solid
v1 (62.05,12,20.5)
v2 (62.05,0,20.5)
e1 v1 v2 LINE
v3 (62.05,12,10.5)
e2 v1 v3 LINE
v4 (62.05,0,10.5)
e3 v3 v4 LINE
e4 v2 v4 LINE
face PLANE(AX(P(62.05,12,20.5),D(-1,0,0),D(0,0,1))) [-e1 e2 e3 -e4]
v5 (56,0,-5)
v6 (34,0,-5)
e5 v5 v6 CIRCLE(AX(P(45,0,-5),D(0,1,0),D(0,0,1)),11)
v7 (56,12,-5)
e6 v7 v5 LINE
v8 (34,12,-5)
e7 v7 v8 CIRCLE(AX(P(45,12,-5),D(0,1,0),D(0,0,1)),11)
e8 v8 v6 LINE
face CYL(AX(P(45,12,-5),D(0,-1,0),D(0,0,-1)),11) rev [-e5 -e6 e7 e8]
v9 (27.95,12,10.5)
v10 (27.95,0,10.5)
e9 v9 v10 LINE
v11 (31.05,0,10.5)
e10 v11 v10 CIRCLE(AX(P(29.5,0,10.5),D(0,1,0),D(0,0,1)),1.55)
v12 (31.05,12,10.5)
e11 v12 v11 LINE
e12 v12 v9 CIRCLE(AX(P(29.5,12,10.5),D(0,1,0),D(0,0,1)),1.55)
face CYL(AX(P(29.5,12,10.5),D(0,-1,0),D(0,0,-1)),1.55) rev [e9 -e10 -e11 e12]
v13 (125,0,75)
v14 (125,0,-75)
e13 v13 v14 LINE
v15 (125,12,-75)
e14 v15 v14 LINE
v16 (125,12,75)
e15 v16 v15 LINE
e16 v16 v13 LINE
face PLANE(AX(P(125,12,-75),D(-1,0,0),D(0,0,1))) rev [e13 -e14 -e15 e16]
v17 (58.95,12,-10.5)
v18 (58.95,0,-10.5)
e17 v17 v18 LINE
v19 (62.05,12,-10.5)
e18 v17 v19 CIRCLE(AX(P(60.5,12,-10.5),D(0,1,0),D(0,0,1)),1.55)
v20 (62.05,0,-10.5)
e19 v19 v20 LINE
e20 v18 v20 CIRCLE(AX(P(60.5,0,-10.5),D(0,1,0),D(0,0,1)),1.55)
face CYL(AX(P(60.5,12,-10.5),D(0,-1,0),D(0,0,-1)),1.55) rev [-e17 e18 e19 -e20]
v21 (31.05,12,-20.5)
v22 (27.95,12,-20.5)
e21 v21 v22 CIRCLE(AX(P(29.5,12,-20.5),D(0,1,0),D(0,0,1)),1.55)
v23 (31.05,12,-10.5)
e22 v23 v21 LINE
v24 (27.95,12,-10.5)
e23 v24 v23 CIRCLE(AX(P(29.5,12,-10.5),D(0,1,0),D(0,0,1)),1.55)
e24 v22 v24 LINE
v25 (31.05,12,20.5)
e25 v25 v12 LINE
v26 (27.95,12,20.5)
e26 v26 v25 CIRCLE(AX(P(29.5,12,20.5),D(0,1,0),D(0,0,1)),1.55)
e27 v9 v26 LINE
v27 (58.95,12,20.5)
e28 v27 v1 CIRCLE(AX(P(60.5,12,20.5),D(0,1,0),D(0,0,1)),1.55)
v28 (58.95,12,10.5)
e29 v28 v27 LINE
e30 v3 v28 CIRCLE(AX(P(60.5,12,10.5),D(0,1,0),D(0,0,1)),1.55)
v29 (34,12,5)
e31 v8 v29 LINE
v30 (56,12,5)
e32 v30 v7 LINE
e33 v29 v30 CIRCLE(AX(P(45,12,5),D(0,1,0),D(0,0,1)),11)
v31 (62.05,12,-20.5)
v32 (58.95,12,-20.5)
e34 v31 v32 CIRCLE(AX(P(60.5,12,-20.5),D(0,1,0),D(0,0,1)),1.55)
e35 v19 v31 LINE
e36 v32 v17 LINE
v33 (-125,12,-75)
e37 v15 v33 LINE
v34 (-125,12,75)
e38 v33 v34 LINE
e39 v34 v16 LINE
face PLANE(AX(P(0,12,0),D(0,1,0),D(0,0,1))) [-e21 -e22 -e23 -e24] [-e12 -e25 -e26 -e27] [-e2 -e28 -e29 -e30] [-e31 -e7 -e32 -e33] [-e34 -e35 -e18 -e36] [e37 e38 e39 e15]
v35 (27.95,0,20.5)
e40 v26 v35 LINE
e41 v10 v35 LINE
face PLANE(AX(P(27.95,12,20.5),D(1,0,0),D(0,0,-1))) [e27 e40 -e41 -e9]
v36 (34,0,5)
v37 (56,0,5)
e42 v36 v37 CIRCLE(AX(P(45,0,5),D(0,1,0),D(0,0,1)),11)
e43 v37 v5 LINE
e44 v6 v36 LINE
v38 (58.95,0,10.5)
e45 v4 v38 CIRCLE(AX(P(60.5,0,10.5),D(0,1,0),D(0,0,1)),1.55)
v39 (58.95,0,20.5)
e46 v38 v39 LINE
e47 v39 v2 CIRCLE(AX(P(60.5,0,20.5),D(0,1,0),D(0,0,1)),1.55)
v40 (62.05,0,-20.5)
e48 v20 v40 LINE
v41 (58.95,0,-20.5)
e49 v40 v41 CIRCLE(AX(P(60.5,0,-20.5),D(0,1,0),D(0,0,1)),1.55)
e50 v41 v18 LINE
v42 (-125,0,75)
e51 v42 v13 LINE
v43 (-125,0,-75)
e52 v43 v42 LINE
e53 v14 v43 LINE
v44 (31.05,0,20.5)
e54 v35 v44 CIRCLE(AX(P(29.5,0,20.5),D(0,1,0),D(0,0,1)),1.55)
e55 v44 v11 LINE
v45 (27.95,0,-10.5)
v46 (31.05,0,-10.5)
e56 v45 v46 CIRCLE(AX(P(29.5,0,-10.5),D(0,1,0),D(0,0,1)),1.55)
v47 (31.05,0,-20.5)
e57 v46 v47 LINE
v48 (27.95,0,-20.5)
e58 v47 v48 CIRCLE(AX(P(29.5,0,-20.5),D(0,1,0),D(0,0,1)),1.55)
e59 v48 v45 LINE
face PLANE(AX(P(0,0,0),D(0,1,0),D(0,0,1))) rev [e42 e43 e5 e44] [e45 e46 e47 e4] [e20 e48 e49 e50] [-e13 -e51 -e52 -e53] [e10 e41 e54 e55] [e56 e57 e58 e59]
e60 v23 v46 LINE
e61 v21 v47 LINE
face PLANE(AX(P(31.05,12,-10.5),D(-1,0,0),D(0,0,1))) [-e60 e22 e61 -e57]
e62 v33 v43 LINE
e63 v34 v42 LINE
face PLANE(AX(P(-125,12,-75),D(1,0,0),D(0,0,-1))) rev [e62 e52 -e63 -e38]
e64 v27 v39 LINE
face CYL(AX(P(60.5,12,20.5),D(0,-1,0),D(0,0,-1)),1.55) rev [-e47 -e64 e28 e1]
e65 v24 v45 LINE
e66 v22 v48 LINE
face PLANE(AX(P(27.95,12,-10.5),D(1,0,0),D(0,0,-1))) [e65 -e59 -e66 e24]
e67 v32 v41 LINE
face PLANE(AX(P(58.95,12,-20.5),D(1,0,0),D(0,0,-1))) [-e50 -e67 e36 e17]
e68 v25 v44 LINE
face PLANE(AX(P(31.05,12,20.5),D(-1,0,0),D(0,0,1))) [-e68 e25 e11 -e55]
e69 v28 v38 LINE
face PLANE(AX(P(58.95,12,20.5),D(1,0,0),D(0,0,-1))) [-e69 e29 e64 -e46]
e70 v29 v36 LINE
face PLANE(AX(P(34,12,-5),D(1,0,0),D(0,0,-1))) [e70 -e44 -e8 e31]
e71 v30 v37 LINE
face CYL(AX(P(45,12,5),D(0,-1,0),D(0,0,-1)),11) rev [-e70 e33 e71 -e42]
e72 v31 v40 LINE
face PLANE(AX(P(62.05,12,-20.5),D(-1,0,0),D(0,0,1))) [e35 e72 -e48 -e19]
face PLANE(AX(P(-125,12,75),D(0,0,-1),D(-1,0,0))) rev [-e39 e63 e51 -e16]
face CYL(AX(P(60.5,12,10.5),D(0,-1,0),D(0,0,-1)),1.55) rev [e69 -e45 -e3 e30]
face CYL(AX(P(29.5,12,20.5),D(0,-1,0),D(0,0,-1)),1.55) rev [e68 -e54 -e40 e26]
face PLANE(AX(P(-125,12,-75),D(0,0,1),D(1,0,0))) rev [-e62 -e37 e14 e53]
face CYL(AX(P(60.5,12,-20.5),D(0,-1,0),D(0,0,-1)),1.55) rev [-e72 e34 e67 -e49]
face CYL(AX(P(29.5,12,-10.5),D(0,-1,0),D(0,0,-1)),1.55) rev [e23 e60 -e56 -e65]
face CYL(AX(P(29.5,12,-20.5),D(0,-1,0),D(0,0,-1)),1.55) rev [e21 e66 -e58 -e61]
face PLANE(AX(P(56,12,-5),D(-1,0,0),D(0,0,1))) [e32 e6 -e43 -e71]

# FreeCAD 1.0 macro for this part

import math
import FreeCAD as App
import Part
import Sketcher
from FreeCAD import Vector


def add_polygon(sketch, points):
    """Adds a closed chain of lines whose ends are joined by coincident constraints."""
    first, n = sketch.GeometryCount, len(points)
    for a, b in zip(points, points[1:] + points[:1]):
        sketch.addGeometry(Part.LineSegment(App.Vector(*a, 0), App.Vector(*b, 0)), False)
    for i in range(n):
        sketch.addConstraint(Sketcher.Constraint("Coincident", first + i, 2, first + (i + 1) % n, 1))

doc = App.newDocument("Part")
body = doc.addObject("PartDesign::Body", "Body")

sketch1 = body.newObject("Sketcher::SketchObject", "Sketch")
sketch1.AttachmentSupport = (doc.getObject("XZ_Plane"), [""])
sketch1.MapMode = "FlatFace"
add_polygon(sketch1, [(-125, -75), (-125, 75), (125, 75), (125, -75)])
sketch1.addGeometry(Part.ArcOfCircle(Part.Circle(Vector(29.5, 20.5, 0), Vector(0, 0, 1), 1.55), math.radians(0), math.radians(180)), False)
sketch1.addGeometry(Part.LineSegment(Vector(27.95, 20.5, 0), Vector(27.95, 10.5, 0)), False)
sketch1.addGeometry(Part.ArcOfCircle(Part.Circle(Vector(29.5, 10.5, 0), Vector(0, 0, 1), 1.55), math.radians(180), math.radians(360)), False)
sketch1.addGeometry(Part.LineSegment(Vector(31.05, 10.5, 0), Vector(31.05, 20.5, 0)), False)
sketch1.addGeometry(Part.ArcOfCircle(Part.Circle(Vector(60.5, 20.5, 0), Vector(0, 0, 1), 1.55), math.radians(0), math.radians(180)), False)
sketch1.addGeometry(Part.LineSegment(Vector(58.95, 20.5, 0), Vector(58.95, 10.5, 0)), False)
sketch1.addGeometry(Part.ArcOfCircle(Part.Circle(Vector(60.5, 10.5, 0), Vector(0, 0, 1), 1.55), math.radians(180), math.radians(360)), False)
sketch1.addGeometry(Part.LineSegment(Vector(62.05, 10.5, 0), Vector(62.05, 20.5, 0)), False)
sketch1.addGeometry(Part.ArcOfCircle(Part.Circle(Vector(29.5, -10.5, 0), Vector(0, 0, 1), 1.55), math.radians(0), math.radians(180)), False)
sketch1.addGeometry(Part.LineSegment(Vector(27.95, -10.5, 0), Vector(27.95, -20.5, 0)), False)
sketch1.addGeometry(Part.ArcOfCircle(Part.Circle(Vector(29.5, -20.5, 0), Vector(0, 0, 1), 1.55), math.radians(180), math.radians(360)), False)
sketch1.addGeometry(Part.LineSegment(Vector(31.05, -20.5, 0), Vector(31.05, -10.5, 0)), False)
sketch1.addGeometry(Part.ArcOfCircle(Part.Circle(Vector(45, -5, 0), Vector(0, 0, 1), 11), math.radians(180), math.radians(360)), False)
sketch1.addGeometry(Part.LineSegment(Vector(56, -5, 0), Vector(56, 5, 0)), False)
sketch1.addGeometry(Part.ArcOfCircle(Part.Circle(Vector(45, 5, 0), Vector(0, 0, 1), 11), math.radians(0), math.radians(180)), False)
sketch1.addGeometry(Part.LineSegment(Vector(34, 5, 0), Vector(34, -5, 0)), False)
sketch1.addGeometry(Part.ArcOfCircle(Part.Circle(Vector(60.5, -20.5, 0), Vector(0, 0, 1), 1.55), math.radians(180), math.radians(360)), False)
sketch1.addGeometry(Part.LineSegment(Vector(62.05, -20.5, 0), Vector(62.05, -10.5, 0)), False)
sketch1.addGeometry(Part.ArcOfCircle(Part.Circle(Vector(60.5, -10.5, 0), Vector(0, 0, 1), 1.55), math.radians(0), math.radians(180)), False)
sketch1.addGeometry(Part.LineSegment(Vector(58.95, -10.5, 0), Vector(58.95, -20.5, 0)), False)
sketch1.addConstraint([
    Sketcher.Constraint("Tangent", 4, 2, 5, 1),
    Sketcher.Constraint("Tangent", 5, 2, 6, 1),
    Sketcher.Constraint("Tangent", 6, 2, 7, 1),
    Sketcher.Constraint("Tangent", 7, 2, 4, 1),
    Sketcher.Constraint("Tangent", 8, 2, 9, 1),
    Sketcher.Constraint("Tangent", 9, 2, 10, 1),
    Sketcher.Constraint("Tangent", 10, 2, 11, 1),
    Sketcher.Constraint("Tangent", 11, 2, 8, 1),
    Sketcher.Constraint("Tangent", 12, 2, 13, 1),
    Sketcher.Constraint("Tangent", 13, 2, 14, 1),
    Sketcher.Constraint("Tangent", 14, 2, 15, 1),
    Sketcher.Constraint("Tangent", 15, 2, 12, 1),
    Sketcher.Constraint("Tangent", 16, 2, 17, 1),
    Sketcher.Constraint("Tangent", 17, 2, 18, 1),
    Sketcher.Constraint("Tangent", 18, 2, 19, 1),
    Sketcher.Constraint("Tangent", 19, 2, 16, 1),
    Sketcher.Constraint("Tangent", 20, 2, 21, 1),
    Sketcher.Constraint("Tangent", 21, 2, 22, 1),
    Sketcher.Constraint("Tangent", 22, 2, 23, 1),
    Sketcher.Constraint("Tangent", 23, 2, 20, 1),
    Sketcher.Constraint("Vertical", 0),
    Sketcher.Constraint("Horizontal", 1),
    Sketcher.Constraint("Vertical", 2),
    Sketcher.Constraint("Horizontal", 3),
    Sketcher.Constraint("Vertical", 5),
    Sketcher.Constraint("Vertical", 7),
    Sketcher.Constraint("Vertical", 9),
    Sketcher.Constraint("Vertical", 11),
    Sketcher.Constraint("Vertical", 13),
    Sketcher.Constraint("Vertical", 15),
    Sketcher.Constraint("Vertical", 17),
    Sketcher.Constraint("Vertical", 19),
    Sketcher.Constraint("Vertical", 21),
    Sketcher.Constraint("Vertical", 23),
    Sketcher.Constraint("Equal", 6, 8),
    Sketcher.Constraint("Equal", 10, 12),
    Sketcher.Constraint("Equal", 14, 20),
    Sketcher.Constraint("Symmetric", 0, 2, 2, 2, -1, 1),
    Sketcher.Constraint("Symmetric", 6, 3, 12, 3, -1),
    Sketcher.Constraint("Symmetric", 8, 3, 20, 3, -1),
    Sketcher.Constraint("Horizontal", 4, 3, 8, 3),
    Sketcher.Constraint("Horizontal", 6, 3, 10, 3),
    Sketcher.Constraint("Horizontal", 14, 3, 20, 3),
    Sketcher.Constraint("Horizontal", 12, 3, 22, 3),
    Sketcher.Constraint("Equal", 15, 17),
    Sketcher.Constraint("Radius", 16, 11.0),
    Sketcher.Constraint("DistanceX", 1, 1, 1, 2, 250.0),
    Sketcher.Constraint("DistanceY", 0, 1, 0, 2, 150.0),
    Sketcher.Constraint("DistanceY", 5, 2, 5, 1, 10.0),
    Sketcher.Constraint("Radius", 4, 1.55),
    Sketcher.Constraint("DistanceX", -1, 1, 16, 3, 45.0),
    Sketcher.Constraint("DistanceY", 16, 3, -1, 1, 5.0),
    Sketcher.Constraint("DistanceX", 4, 3, 8, 3, 31.0),
    Sketcher.Constraint("DistanceY", 12, 3, 6, 3, 21.0),
    Sketcher.Constraint("DistanceX", -1, 1, 4, 3, 29.5),
])
pad1 = body.newObject("PartDesign::Pad", "Pad")
pad1.Profile = sketch1
pad1.Length = 12
pad1.Reversed = True

doc.recompute()
